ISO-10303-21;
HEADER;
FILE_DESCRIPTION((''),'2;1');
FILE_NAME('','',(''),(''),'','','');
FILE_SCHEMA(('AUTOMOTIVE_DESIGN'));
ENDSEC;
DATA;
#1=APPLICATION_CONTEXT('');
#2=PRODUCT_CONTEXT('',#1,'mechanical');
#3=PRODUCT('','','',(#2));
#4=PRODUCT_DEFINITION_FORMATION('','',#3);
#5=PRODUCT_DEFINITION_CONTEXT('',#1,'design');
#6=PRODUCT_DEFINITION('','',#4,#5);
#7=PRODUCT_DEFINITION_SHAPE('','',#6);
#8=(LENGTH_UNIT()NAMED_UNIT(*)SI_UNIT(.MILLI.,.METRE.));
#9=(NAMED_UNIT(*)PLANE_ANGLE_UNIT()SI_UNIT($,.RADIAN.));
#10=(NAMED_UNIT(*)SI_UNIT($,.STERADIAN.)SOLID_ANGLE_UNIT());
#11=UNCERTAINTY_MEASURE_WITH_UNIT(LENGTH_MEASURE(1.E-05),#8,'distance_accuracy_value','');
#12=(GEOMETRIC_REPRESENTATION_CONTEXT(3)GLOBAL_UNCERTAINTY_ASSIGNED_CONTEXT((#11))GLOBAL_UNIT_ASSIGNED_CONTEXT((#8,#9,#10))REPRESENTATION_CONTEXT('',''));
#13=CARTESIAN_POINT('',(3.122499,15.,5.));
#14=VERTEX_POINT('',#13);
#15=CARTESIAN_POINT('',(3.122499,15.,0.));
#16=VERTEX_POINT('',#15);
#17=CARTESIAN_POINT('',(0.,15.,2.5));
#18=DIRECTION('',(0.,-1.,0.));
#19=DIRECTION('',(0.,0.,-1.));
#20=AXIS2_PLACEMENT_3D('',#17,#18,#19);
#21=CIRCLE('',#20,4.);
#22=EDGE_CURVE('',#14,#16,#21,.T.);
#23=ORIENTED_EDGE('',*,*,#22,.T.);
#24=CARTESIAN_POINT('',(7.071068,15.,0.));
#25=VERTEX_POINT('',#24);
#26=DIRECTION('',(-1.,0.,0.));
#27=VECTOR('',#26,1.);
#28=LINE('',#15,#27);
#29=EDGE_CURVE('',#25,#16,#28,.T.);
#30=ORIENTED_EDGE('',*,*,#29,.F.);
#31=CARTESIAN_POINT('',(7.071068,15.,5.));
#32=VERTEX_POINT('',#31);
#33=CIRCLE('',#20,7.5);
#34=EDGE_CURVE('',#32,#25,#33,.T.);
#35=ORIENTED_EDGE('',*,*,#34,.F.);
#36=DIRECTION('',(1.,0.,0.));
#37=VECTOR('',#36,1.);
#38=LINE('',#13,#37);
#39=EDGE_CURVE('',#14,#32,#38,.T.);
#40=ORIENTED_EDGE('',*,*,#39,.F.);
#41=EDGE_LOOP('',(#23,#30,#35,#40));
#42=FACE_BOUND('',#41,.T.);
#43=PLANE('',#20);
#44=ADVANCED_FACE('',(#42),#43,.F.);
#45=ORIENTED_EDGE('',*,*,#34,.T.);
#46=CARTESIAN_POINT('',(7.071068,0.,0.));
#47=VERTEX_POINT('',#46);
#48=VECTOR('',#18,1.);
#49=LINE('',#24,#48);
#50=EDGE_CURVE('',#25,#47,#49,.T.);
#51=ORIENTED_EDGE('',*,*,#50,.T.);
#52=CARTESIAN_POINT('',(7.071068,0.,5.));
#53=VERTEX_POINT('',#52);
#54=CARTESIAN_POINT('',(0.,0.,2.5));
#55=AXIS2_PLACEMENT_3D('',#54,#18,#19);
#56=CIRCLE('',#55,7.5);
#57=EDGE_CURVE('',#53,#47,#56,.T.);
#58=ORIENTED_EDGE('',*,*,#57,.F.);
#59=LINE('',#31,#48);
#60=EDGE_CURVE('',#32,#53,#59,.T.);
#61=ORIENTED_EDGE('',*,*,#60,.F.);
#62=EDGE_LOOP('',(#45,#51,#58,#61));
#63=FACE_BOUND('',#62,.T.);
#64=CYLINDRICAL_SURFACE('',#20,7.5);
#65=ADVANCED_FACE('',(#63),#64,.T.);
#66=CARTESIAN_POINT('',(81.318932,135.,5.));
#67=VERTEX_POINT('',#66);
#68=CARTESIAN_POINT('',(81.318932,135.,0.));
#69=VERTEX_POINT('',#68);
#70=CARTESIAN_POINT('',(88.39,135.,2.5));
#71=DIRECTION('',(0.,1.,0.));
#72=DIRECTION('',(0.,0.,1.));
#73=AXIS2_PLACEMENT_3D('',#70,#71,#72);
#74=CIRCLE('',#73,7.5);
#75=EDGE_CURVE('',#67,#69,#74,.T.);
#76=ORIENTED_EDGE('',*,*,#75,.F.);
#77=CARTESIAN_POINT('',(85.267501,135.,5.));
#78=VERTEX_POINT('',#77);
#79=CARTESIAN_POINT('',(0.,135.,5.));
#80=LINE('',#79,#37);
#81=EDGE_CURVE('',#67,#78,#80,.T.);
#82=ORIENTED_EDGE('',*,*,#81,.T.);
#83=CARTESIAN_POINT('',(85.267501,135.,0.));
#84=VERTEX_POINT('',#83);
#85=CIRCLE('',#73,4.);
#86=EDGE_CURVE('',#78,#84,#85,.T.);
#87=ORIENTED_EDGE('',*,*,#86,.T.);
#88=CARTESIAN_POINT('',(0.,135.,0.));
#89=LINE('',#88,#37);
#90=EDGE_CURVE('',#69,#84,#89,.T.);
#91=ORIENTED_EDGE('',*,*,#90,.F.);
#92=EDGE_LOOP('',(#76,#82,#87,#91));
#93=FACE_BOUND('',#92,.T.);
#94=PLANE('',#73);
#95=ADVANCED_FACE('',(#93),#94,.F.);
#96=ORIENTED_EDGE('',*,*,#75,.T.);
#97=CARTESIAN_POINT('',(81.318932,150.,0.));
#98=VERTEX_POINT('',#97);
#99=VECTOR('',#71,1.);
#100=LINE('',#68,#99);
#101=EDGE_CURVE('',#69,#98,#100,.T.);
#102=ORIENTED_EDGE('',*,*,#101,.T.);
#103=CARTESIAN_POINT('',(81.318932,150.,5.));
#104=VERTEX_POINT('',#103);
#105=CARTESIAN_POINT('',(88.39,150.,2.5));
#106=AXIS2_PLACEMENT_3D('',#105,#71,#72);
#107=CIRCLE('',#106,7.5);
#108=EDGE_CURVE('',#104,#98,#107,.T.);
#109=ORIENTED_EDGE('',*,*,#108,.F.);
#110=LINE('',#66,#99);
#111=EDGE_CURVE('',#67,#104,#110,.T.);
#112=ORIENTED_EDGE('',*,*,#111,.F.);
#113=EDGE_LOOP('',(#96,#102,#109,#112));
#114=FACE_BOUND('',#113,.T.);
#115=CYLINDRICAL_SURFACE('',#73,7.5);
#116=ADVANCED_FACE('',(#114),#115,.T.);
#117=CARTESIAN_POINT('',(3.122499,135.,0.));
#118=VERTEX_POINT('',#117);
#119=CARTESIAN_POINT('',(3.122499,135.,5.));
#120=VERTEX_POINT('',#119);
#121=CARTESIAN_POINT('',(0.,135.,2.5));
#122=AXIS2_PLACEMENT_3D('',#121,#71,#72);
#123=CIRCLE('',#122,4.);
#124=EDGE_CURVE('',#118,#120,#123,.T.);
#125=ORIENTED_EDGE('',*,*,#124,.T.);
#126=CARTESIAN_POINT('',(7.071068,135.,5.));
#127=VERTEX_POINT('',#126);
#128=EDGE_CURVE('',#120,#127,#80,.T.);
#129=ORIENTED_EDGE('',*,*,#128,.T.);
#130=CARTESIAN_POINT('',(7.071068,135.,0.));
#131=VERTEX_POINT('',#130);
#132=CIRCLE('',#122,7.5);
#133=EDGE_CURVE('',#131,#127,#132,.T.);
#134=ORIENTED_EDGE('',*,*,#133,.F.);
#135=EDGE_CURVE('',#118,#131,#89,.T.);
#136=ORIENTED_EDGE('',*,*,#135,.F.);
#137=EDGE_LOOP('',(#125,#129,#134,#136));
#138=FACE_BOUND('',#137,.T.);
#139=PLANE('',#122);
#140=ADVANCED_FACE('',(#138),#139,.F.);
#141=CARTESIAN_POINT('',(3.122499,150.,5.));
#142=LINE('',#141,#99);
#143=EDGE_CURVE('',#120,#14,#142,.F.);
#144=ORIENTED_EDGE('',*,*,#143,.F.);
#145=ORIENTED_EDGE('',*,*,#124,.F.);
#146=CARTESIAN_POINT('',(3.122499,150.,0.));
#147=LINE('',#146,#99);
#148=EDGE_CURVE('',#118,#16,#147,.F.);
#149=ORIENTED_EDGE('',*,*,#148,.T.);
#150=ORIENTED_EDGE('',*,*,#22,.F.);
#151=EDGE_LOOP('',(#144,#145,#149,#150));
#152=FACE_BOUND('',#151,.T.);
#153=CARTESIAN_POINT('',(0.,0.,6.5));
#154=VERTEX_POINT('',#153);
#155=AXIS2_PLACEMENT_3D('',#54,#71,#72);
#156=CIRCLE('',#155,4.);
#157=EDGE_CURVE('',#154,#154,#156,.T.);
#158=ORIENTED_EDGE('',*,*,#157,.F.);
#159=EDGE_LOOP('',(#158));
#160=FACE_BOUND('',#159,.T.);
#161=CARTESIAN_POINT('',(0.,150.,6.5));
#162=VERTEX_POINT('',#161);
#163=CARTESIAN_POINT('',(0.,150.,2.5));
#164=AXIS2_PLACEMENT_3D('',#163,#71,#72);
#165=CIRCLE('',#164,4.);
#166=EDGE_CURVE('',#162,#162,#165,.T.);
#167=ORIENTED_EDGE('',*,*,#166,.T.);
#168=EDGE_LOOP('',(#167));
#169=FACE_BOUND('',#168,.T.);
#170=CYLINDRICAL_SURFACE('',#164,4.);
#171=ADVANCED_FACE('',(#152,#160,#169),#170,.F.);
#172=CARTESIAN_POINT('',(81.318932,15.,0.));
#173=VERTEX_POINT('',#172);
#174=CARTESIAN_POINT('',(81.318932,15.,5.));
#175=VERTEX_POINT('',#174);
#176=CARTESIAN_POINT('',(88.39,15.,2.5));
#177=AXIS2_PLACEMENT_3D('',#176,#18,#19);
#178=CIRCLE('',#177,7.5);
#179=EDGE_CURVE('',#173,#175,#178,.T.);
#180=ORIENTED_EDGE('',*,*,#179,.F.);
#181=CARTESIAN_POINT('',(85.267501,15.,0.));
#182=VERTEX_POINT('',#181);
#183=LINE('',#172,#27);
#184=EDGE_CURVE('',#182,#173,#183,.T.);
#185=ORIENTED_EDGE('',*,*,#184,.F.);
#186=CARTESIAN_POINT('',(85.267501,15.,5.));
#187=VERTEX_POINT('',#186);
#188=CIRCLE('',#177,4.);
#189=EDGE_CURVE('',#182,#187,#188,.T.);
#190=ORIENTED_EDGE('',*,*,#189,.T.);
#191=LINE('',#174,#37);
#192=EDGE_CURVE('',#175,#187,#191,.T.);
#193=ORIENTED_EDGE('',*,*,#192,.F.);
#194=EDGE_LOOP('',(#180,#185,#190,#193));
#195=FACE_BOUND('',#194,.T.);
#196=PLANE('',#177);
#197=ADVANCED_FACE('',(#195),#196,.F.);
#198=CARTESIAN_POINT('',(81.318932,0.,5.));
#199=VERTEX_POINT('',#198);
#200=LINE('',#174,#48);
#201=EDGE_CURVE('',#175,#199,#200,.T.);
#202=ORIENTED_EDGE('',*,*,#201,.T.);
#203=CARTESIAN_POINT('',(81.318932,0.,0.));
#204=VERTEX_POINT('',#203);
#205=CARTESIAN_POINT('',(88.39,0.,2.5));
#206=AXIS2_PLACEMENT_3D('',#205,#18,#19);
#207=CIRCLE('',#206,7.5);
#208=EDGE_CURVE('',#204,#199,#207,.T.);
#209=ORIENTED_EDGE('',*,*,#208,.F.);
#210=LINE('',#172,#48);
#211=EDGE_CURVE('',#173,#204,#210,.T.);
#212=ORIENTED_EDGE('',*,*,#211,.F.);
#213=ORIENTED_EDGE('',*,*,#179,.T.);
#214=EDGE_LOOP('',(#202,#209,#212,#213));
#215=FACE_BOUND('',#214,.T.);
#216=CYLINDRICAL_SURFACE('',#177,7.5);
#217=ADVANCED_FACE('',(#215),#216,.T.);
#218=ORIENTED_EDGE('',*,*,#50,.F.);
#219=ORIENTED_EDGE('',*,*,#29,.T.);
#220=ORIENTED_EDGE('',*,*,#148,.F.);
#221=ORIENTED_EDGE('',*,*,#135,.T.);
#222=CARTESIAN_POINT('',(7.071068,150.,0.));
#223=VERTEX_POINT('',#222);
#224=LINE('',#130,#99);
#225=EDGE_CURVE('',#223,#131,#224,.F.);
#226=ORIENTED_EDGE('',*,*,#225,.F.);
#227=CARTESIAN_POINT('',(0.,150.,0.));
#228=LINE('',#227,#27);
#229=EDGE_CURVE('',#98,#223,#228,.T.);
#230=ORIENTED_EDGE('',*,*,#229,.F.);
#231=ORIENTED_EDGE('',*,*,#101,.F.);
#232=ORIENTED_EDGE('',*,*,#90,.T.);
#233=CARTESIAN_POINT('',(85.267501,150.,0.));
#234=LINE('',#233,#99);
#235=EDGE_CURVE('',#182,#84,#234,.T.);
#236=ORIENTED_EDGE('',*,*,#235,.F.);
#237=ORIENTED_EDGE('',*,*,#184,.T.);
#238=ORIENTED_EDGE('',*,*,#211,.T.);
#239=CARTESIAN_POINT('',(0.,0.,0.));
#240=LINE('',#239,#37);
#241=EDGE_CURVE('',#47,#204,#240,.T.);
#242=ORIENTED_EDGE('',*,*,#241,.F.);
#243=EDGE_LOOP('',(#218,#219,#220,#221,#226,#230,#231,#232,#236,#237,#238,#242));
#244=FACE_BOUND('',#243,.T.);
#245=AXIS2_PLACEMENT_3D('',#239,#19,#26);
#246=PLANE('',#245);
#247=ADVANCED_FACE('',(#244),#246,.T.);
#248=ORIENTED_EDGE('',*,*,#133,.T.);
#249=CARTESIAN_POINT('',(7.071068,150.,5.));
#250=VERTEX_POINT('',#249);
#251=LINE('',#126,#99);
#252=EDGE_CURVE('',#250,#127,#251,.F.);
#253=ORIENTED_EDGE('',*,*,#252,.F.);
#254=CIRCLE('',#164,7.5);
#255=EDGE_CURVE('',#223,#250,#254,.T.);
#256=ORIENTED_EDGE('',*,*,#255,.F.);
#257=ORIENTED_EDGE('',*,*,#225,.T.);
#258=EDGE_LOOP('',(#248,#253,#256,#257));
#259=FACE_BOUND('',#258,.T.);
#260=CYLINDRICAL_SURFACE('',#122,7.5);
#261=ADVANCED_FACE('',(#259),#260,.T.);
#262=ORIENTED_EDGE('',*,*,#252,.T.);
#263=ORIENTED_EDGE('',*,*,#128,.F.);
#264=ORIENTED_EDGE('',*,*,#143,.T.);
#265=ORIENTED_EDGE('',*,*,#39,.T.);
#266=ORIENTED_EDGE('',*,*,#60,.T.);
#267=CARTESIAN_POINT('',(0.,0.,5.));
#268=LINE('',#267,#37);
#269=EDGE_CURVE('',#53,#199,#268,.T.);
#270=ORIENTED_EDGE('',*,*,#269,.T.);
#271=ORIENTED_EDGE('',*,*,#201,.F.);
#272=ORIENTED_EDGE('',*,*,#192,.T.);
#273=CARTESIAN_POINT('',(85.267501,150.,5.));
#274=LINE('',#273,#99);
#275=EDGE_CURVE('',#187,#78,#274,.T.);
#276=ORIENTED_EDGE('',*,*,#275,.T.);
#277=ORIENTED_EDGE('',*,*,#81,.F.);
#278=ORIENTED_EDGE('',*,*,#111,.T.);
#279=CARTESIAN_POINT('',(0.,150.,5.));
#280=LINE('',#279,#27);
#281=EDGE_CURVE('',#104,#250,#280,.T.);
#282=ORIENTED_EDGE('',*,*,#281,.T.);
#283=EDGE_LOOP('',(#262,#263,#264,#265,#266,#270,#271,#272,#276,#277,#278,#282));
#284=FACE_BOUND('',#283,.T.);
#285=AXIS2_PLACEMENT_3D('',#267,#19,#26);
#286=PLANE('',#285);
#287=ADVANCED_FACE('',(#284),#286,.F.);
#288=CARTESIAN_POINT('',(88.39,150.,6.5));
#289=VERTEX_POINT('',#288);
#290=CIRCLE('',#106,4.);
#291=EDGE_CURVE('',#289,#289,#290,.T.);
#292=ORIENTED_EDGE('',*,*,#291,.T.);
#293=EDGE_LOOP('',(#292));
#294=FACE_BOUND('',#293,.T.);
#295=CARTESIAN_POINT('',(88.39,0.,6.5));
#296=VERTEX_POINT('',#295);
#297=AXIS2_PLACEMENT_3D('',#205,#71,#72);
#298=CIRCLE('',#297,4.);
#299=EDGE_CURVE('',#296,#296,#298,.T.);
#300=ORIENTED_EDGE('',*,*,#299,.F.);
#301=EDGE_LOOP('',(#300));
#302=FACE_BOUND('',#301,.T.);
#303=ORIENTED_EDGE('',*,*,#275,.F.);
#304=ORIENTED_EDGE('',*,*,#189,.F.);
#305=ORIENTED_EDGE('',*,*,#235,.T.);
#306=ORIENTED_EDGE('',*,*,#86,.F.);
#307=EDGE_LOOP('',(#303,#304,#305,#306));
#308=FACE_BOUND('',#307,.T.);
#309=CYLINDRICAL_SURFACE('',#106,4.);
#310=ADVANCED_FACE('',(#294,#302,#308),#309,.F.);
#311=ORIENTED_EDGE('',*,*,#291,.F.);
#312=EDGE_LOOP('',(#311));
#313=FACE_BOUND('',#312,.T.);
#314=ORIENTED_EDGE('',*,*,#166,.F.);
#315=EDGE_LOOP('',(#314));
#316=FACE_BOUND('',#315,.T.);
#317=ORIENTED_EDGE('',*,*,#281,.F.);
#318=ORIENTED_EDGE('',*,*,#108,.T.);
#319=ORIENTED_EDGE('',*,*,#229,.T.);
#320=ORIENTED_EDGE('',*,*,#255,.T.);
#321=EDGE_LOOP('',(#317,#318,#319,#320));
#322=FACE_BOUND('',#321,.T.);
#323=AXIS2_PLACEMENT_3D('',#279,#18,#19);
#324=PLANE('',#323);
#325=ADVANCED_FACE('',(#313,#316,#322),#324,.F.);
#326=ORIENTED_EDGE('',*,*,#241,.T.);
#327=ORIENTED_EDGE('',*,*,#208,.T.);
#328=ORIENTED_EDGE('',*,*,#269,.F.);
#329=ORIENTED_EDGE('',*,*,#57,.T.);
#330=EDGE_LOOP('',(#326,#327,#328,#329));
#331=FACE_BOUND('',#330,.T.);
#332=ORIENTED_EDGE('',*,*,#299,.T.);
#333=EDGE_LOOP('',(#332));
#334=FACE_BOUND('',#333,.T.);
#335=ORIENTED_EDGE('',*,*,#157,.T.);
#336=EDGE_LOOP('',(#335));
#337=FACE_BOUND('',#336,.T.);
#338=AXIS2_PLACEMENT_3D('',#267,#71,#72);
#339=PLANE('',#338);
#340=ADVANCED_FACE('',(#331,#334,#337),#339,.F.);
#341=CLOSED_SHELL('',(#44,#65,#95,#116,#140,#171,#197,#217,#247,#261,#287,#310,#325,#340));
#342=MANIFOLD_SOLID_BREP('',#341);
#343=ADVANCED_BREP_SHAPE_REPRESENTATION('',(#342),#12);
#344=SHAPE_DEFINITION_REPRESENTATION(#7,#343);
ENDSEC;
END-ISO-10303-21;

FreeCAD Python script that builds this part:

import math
import FreeCAD as App
import Part
import Sketcher

doc = App.newDocument("Part")
body = doc.addObject("PartDesign::Body", "Body")

# Sketch on XY plane
sketch1 = body.newObject("Sketcher::SketchObject", "Sketch")
sketch1.AttachmentSupport = (doc.getObject("XY_Plane"), [""])
sketch1.MapMode = "FlatFace"
sketch1.addGeometry(Part.LineSegment(App.Vector(0, 150, 0), App.Vector(0, 0, 0)), False)
sketch1.addGeometry(Part.LineSegment(App.Vector(0, 0, 0), App.Vector(88, 0, 0)), False)
sketch1.addGeometry(Part.LineSegment(App.Vector(88, 0, 0), App.Vector(88, 150, 0)), False)
sketch1.addGeometry(Part.LineSegment(App.Vector(88, 150, 0), App.Vector(0, 150, 0)), False)
sketch1.addConstraint(Sketcher.Constraint("Coincident", 0, 2, 1, 1))
sketch1.addConstraint(Sketcher.Constraint("Coincident", 1, 2, 2, 1))
sketch1.addConstraint(Sketcher.Constraint("Coincident", 2, 2, 3, 1))
sketch1.addConstraint(Sketcher.Constraint("Coincident", 3, 2, 0, 1))
sketch1.addConstraint(Sketcher.Constraint("Vertical", 0))
sketch1.addConstraint(Sketcher.Constraint("Horizontal", 1))
sketch1.addConstraint(Sketcher.Constraint("Vertical", 2))
sketch1.addConstraint(Sketcher.Constraint("Horizontal", 3))
sketch1.addConstraint(Sketcher.Constraint("Coincident", 0, 2, -1, 1))
sketch1.addConstraint(Sketcher.Constraint("DistanceY", 0, 2, 0, 1, 150.0))
sketch1.addConstraint(Sketcher.Constraint("DistanceX", 1, 1, 1, 2, 88.39))
pad1 = body.newObject("PartDesign::Pad", "Pad")
pad1.Profile = sketch1
pad1.Length = 5

# Sketch on XZ plane
sketch2 = body.newObject("Sketcher::SketchObject", "Sketch001")
sketch2.AttachmentSupport = (doc.getObject("XZ_Plane"), [""])
sketch2.MapMode = "FlatFace"
sketch2.AttachmentOffset = App.Placement(App.Vector(0, 0, -150), App.Rotation())
sketch2.addGeometry(Part.Circle(App.Vector(88, 2, 0), App.Vector(0, 0, 1), 8), False)
sketch2.addGeometry(Part.Circle(App.Vector(0, 2, 0), App.Vector(0, 0, 1), 8), False)
sketch2.addConstraint(Sketcher.Constraint("Equal", 0, 1))
sketch2.addConstraint(Sketcher.Constraint("PointOnObject", 1, 3, -2))
sketch2.addConstraint(Sketcher.Constraint("Horizontal", 0, 3, 1, 3))
sketch2.addConstraint(Sketcher.Constraint("Diameter", 0, 15.0))
sketch2.addConstraint(Sketcher.Constraint("DistanceY", -1, 1, 0, 3, 2.5))
sketch2.addConstraint(Sketcher.Constraint("DistanceX", -1, 1, 0, 3, 88.39))
pad2 = body.newObject("PartDesign::Pad", "Pad001")
pad2.Profile = sketch2
pad2.Length = 15

# Sketch on XZ plane
sketch3 = body.newObject("Sketcher::SketchObject", "Sketch002")
sketch3.AttachmentSupport = (doc.getObject("XZ_Plane"), [""])
sketch3.MapMode = "FlatFace"
sketch3.AttachmentOffset = App.Placement(App.Vector(0, 0, -150), App.Rotation())
sketch3.addGeometry(Part.Circle(App.Vector(0, 2.5, 0), App.Vector(0, 0, 1), 4), False)
sketch3.addGeometry(Part.Circle(App.Vector(88.4, 2.5, 0), App.Vector(0, 0, 1), 4), False)
sketch3.addConstraint(Sketcher.Constraint("Equal", 0, 1))
sketch3.addConstraint(Sketcher.Constraint("PointOnObject", 0, 3, -2))
sketch3.addConstraint(Sketcher.Constraint("Horizontal", 0, 3, 1, 3))
sketch3.addConstraint(Sketcher.Constraint("Diameter", 0, 8.0))
sketch3.addConstraint(Sketcher.Constraint("DistanceY", -1, 1, 0, 3, 2.5))
sketch3.addConstraint(Sketcher.Constraint("DistanceX", -1, 1, 1, 3, 88.39))
doc.recompute()
hole = body.newObject("PartDesign::Hole", "Hole")
hole.Profile = sketch3
hole.ThreadType = "None"
hole.Diameter = 8
hole.DepthType = "ThroughAll"
hole.Reversed = True

# Sketch on XZ plane
sketch4 = body.newObject("Sketcher::SketchObject", "Sketch003")
sketch4.AttachmentSupport = (doc.getObject("XZ_Plane"), [""])
sketch4.MapMode = "FlatFace"
sketch4.addGeometry(Part.LineSegment(App.Vector(85.3, 0, 0), App.Vector(81.3, 0, 0)), False)
sketch4.addGeometry(Part.ArcOfCircle(Part.Circle(App.Vector(88.4, 2.5, 0), App.Vector(0, 0, 1), 7.5), math.radians(-161), math.radians(161)), False)
sketch4.addGeometry(Part.LineSegment(App.Vector(81.3, 5, 0), App.Vector(85.3, 5, 0)), False)
sketch4.addGeometry(Part.ArcOfCircle(Part.Circle(App.Vector(88.4, 2.5, 0), App.Vector(0, 0, 1), 4), math.radians(141), math.radians(219)), False)
sketch4.addGeometry(Part.LineSegment(App.Vector(3.1, 5, 0), App.Vector(7.1, 5, 0)), False)
sketch4.addGeometry(Part.ArcOfCircle(Part.Circle(App.Vector(0, 2.5, 0), App.Vector(0, 0, 1), 7.5), math.radians(19), math.radians(341)), False)
sketch4.addGeometry(Part.LineSegment(App.Vector(7.1, 0, 0), App.Vector(3.1, 0, 0)), False)
sketch4.addGeometry(Part.ArcOfCircle(Part.Circle(App.Vector(0, 2.5, 0), App.Vector(0, 0, 1), 4), math.radians(-39), math.radians(39)), False)
sketch4.addConstraint(Sketcher.Constraint("Coincident", 0, 2, 1, 1))
sketch4.addConstraint(Sketcher.Constraint("Coincident", 1, 2, 2, 1))
sketch4.addConstraint(Sketcher.Constraint("Coincident", 2, 2, 3, 1))
sketch4.addConstraint(Sketcher.Constraint("Coincident", 3, 2, 0, 1))
sketch4.addConstraint(Sketcher.Constraint("Coincident", 4, 2, 5, 1))
sketch4.addConstraint(Sketcher.Constraint("Coincident", 5, 2, 6, 1))
sketch4.addConstraint(Sketcher.Constraint("Coincident", 6, 2, 7, 1))
sketch4.addConstraint(Sketcher.Constraint("Coincident", 7, 2, 4, 1))
sketch4.addConstraint(Sketcher.Constraint("Horizontal", 0))
sketch4.addConstraint(Sketcher.Constraint("Horizontal", 2))
sketch4.addConstraint(Sketcher.Constraint("Horizontal", 4))
sketch4.addConstraint(Sketcher.Constraint("Horizontal", 6))
sketch4.addConstraint(Sketcher.Constraint("Coincident", 3, 3, 1, 3))
sketch4.addConstraint(Sketcher.Constraint("Coincident", 7, 3, 5, 3))
sketch4.addConstraint(Sketcher.Constraint("Equal", 1, 5))
sketch4.addConstraint(Sketcher.Constraint("Equal", 3, 7))
sketch4.addConstraint(Sketcher.Constraint("PointOnObject", 5, 3, -2))
sketch4.addConstraint(Sketcher.Constraint("PointOnObject", 0, 2, -1))
sketch4.addConstraint(Sketcher.Constraint("PointOnObject", 5, 2, -1))
sketch4.addConstraint(Sketcher.Constraint("Horizontal", 3, 3, 5, 3))
sketch4.addConstraint(Sketcher.Constraint("Horizontal", 2, 2, 4, 2))
sketch4.addConstraint(Sketcher.Constraint("Vertical", 0, 2, 1, 2))
sketch4.addConstraint(Sketcher.Constraint("Radius", 3, 4.0))
sketch4.addConstraint(Sketcher.Constraint("Radius", 1, 7.5))
sketch4.addConstraint(Sketcher.Constraint("DistanceY", -1, 1, 1, 2, 5.0))
sketch4.addConstraint(Sketcher.Constraint("DistanceX", -1, 1, 1, 3, 88.39))
pad3 = body.newObject("PartDesign::Pad", "Pad002")
pad3.Profile = sketch4
pad3.Length = 15
pad3.Reversed = True

# Sketch on XZ plane
sketch5 = body.newObject("Sketcher::SketchObject", "Sketch004")
sketch5.AttachmentSupport = (doc.getObject("XZ_Plane"), [""])
sketch5.MapMode = "FlatFace"
sketch5.AttachmentOffset = App.Placement(App.Vector(0, 0, -15), App.Rotation())
sketch5.addGeometry(Part.Circle(App.Vector(0, 2.5, 0), App.Vector(0, 0, 1), 4), False)
sketch5.addGeometry(Part.Circle(App.Vector(88.4, 2.5, 0), App.Vector(0, 0, 1), 4), False)
sketch5.addConstraint(Sketcher.Constraint("Equal", 0, 1))
sketch5.addConstraint(Sketcher.Constraint("PointOnObject", 0, 3, -2))
sketch5.addConstraint(Sketcher.Constraint("Horizontal", 0, 3, 1, 3))
sketch5.addConstraint(Sketcher.Constraint("Diameter", 0, 8.0))
sketch5.addConstraint(Sketcher.Constraint("DistanceY", -1, 1, 0, 3, 2.5))
sketch5.addConstraint(Sketcher.Constraint("DistanceX", -1, 1, 1, 3, 88.39))
pocket1 = body.newObject("PartDesign::Pocket", "Pocket")
pocket1.Profile = sketch5
pocket1.Type = "ThroughAll"
pocket1.Reversed = True

doc.recompute()
